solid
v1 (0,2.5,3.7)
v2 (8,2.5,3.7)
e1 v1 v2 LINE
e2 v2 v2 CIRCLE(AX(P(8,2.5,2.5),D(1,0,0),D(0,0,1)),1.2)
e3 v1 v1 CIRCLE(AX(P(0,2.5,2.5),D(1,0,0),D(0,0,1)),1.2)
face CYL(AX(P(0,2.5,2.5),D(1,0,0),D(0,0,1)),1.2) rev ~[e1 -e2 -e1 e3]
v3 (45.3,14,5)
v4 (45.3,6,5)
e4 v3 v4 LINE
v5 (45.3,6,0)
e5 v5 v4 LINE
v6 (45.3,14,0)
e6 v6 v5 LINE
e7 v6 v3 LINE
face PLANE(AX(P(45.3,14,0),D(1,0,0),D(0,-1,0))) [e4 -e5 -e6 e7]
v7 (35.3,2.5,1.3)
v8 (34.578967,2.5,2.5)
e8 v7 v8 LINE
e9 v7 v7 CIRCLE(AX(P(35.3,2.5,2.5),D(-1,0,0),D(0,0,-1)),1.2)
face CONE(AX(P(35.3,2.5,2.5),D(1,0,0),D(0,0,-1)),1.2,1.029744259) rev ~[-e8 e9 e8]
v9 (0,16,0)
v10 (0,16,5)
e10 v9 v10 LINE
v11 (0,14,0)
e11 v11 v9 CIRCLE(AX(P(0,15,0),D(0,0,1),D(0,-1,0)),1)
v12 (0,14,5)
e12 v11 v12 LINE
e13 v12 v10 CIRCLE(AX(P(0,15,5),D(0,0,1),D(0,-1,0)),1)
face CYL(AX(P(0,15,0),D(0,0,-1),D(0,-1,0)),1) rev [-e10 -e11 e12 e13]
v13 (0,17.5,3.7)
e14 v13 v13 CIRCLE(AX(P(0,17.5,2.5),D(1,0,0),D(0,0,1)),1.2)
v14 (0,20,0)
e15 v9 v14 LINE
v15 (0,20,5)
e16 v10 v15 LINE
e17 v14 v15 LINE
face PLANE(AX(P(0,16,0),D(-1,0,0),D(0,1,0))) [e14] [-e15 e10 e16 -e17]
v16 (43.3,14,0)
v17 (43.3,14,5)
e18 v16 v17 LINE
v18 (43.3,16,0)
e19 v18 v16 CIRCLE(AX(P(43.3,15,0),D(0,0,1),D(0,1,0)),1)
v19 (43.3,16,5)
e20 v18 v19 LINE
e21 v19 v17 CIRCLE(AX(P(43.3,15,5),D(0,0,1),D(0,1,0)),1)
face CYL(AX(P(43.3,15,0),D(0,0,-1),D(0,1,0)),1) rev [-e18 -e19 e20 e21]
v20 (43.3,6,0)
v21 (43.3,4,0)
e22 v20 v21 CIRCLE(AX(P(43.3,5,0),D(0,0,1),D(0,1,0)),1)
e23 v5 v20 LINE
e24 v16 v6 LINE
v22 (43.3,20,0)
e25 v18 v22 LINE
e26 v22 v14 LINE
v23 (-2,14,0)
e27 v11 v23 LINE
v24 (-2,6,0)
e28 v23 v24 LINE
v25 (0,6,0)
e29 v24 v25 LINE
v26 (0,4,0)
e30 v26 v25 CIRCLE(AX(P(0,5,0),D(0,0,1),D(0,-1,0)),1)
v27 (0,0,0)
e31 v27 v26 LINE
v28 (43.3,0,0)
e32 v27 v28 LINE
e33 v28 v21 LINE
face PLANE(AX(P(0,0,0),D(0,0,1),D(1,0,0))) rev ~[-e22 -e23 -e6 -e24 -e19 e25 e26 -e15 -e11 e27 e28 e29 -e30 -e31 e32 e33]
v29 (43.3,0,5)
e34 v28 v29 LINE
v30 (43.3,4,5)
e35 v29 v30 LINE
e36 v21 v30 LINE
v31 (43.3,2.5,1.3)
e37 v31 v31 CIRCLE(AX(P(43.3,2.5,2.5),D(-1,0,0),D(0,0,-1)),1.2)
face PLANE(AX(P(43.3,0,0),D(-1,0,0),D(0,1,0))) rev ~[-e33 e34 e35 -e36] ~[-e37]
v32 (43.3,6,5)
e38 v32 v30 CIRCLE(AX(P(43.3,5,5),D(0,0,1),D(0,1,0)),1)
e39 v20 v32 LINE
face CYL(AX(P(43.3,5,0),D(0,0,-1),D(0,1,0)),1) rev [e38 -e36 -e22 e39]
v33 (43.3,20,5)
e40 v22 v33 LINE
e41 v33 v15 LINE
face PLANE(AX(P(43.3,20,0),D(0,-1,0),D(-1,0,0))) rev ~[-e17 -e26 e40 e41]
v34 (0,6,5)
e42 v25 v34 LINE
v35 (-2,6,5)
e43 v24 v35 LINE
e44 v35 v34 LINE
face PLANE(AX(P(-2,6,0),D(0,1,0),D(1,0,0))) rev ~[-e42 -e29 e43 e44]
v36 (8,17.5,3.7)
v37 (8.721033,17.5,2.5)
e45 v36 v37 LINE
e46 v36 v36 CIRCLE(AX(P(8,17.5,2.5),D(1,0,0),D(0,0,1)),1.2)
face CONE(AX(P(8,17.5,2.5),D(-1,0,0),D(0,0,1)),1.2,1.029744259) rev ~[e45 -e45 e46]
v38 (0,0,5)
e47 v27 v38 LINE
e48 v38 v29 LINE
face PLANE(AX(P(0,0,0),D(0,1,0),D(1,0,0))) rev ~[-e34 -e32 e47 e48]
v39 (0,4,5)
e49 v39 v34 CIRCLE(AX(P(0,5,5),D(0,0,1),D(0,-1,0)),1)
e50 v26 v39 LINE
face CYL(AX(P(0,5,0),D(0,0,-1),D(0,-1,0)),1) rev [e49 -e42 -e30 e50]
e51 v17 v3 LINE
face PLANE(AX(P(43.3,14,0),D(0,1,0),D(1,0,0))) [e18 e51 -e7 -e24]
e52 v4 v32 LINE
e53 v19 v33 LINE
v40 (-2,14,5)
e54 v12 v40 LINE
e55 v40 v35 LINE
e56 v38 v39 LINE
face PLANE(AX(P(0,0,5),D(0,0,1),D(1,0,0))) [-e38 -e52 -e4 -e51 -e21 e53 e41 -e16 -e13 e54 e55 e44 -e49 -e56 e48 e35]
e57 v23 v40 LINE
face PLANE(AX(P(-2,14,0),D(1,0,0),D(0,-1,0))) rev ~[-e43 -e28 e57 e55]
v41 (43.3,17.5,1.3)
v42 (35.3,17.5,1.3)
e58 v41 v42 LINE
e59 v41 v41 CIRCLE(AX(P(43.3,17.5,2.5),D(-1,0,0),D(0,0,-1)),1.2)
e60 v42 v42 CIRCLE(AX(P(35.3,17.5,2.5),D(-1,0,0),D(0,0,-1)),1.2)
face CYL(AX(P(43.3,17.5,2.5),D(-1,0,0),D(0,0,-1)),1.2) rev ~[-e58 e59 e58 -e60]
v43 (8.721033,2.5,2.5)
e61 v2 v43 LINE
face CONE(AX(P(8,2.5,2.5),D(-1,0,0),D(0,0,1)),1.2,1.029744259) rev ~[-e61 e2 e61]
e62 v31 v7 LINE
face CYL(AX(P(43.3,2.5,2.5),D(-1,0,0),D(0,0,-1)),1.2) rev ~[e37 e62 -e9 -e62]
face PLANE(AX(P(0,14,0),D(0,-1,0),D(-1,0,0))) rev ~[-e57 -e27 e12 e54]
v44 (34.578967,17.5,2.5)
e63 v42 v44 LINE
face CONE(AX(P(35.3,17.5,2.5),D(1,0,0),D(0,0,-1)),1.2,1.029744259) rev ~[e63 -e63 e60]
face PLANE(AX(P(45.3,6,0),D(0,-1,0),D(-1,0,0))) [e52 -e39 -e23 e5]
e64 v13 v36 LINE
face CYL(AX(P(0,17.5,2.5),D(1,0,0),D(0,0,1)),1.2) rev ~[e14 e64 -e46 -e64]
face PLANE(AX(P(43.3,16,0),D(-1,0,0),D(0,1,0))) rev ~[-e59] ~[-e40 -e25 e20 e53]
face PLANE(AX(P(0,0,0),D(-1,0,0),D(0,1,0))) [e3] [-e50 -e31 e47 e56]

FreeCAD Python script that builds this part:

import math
import FreeCAD as App
import Part
import Sketcher

V = App.Vector
Q = App.Units.Quantity

doc = App.newDocument("Part")
params = doc.addObject("Spreadsheet::Sheet", "Params")
for row, (alias, value) in enumerate([
    ("sketch1_radius", "1 mm"),
    ("sketch1_width", "2 mm"),
    ("sketch1_height", "8 mm"),
    ("sketch1_width2", "43.3 mm"),
    ("pad1_length", "5 mm"),
    ("sketch2_diameter", "2.4 mm"),
    ("hole_diameter", "2.4 mm"),
    ("hole_depth", "8 mm"),
    ("sketch3_diameter", "2.4 mm"),
    ("hole2_diameter", "2.4 mm"),
    ("hole2_depth", "8 mm"),
], start=1):
    params.set(f"A{row}", alias)
    params.set(f"B{row}", "=" + value)
    params.setAlias(f"B{row}", alias)

body = doc.addObject("PartDesign::Body", "Body")

sketch1 = body.newObject("Sketcher::SketchObject", "Sketch")
sketch1.AttachmentSupport = (doc.getObject("XY_Plane"), [""])
sketch1.MapMode = "FlatFace"
sketch1.addGeometry(Part.LineSegment(V(0, 4, 0), V(0, 0, 0)), False)
sketch1.addGeometry(Part.LineSegment(V(0, 0, 0), V(43.3, 0, 0)), False)
sketch1.addGeometry(Part.LineSegment(V(43.3, 0, 0), V(43.3, 4, 0)), False)
sketch1.addGeometry(Part.ArcOfCircle(Part.Circle(V(43.3, 5, 0), V(0, 0, 1), 1), math.radians(90), math.radians(270)), False)
sketch1.addGeometry(Part.LineSegment(V(43.3, 6, 0), V(45.3, 6, 0)), False)
sketch1.addGeometry(Part.LineSegment(V(45.3, 6, 0), V(45.3, 14, 0)), False)
sketch1.addGeometry(Part.LineSegment(V(45.3, 14, 0), V(43.3, 14, 0)), False)
sketch1.addGeometry(Part.ArcOfCircle(Part.Circle(V(43.3, 15, 0), V(0, 0, 1), 1), math.radians(90), math.radians(270)), False)
sketch1.addGeometry(Part.LineSegment(V(43.3, 16, 0), V(43.3, 20, 0)), False)
sketch1.addGeometry(Part.LineSegment(V(43.3, 20, 0), V(0, 20, 0)), False)
sketch1.addGeometry(Part.LineSegment(V(0, 20, 0), V(0, 16, 0)), False)
sketch1.addGeometry(Part.ArcOfCircle(Part.Circle(V(0, 15, 0), V(0, 0, 1), 1), math.radians(-90), math.radians(90)), False)
sketch1.addGeometry(Part.LineSegment(V(0, 14, 0), V(-2, 14, 0)), False)
sketch1.addGeometry(Part.LineSegment(V(-2, 14, 0), V(-2, 6, 0)), False)
sketch1.addGeometry(Part.LineSegment(V(-2, 6, 0), V(0, 6, 0)), False)
sketch1.addGeometry(Part.ArcOfCircle(Part.Circle(V(0, 5, 0), V(0, 0, 1), 1), math.radians(-90), math.radians(90)), False)
sketch1.addConstraint(Sketcher.Constraint("Coincident", 0, 2, 1, 1))
sketch1.addConstraint(Sketcher.Constraint("Coincident", 1, 2, 2, 1))
sketch1.addConstraint(Sketcher.Constraint("Coincident", 2, 2, 3, 2))
sketch1.addConstraint(Sketcher.Constraint("Tangent", 3, 1, 4, 1))
sketch1.addConstraint(Sketcher.Constraint("Coincident", 4, 2, 5, 1))
sketch1.addConstraint(Sketcher.Constraint("Coincident", 5, 2, 6, 1))
sketch1.addConstraint(Sketcher.Constraint("Tangent", 6, 2, 7, 2))
sketch1.addConstraint(Sketcher.Constraint("Coincident", 7, 1, 8, 1))
sketch1.addConstraint(Sketcher.Constraint("Coincident", 8, 2, 9, 1))
sketch1.addConstraint(Sketcher.Constraint("Coincident", 9, 2, 10, 1))
sketch1.addConstraint(Sketcher.Constraint("Coincident", 10, 2, 11, 2))
sketch1.addConstraint(Sketcher.Constraint("Tangent", 11, 1, 12, 1))
sketch1.addConstraint(Sketcher.Constraint("Coincident", 12, 2, 13, 1))
sketch1.addConstraint(Sketcher.Constraint("Coincident", 13, 2, 14, 1))
sketch1.addConstraint(Sketcher.Constraint("Tangent", 14, 2, 15, 2))
sketch1.addConstraint(Sketcher.Constraint("Coincident", 15, 1, 0, 1))
sketch1.addConstraint(Sketcher.Constraint("Vertical", 0))
sketch1.addConstraint(Sketcher.Constraint("Horizontal", 1))
sketch1.addConstraint(Sketcher.Constraint("Vertical", 2))
sketch1.addConstraint(Sketcher.Constraint("Horizontal", 4))
sketch1.addConstraint(Sketcher.Constraint("Vertical", 5))
sketch1.addConstraint(Sketcher.Constraint("Horizontal", 6))
sketch1.addConstraint(Sketcher.Constraint("Vertical", 8))
sketch1.addConstraint(Sketcher.Constraint("Horizontal", 9))
sketch1.addConstraint(Sketcher.Constraint("Vertical", 10))
sketch1.addConstraint(Sketcher.Constraint("Horizontal", 12))
sketch1.addConstraint(Sketcher.Constraint("Vertical", 13))
sketch1.addConstraint(Sketcher.Constraint("Horizontal", 14))
sketch1.addConstraint(Sketcher.Constraint("Coincident", 0, 2, -1, 1))
sketch1.addConstraint(Sketcher.Constraint("Equal", 3, 7))
sketch1.addConstraint(Sketcher.Constraint("Equal", 7, 11))
sketch1.addConstraint(Sketcher.Constraint("Equal", 11, 15))
sketch1.addConstraint(Sketcher.Constraint("PointOnObject", 11, 3, -2))
sketch1.addConstraint(Sketcher.Constraint("PointOnObject", 15, 3, -2))
sketch1.addConstraint(Sketcher.Constraint("PointOnObject", 9, 2, -2))
sketch1.addConstraint(Sketcher.Constraint("Horizontal", 7, 3, 11, 3))
sketch1.addConstraint(Sketcher.Constraint("Horizontal", 3, 3, 15, 3))
sketch1.addConstraint(Sketcher.Constraint("Vertical", 3, 3, 7, 3))
sketch1.addConstraint(Sketcher.Constraint("Vertical", 7, 3, 1, 2))
sketch1.addConstraint(Sketcher.Constraint("Vertical", 6, 2, 7, 1))
sketch1.addConstraint(Sketcher.Constraint("Equal", 6, 12))
sketch1.addConstraint(Sketcher.Constraint("Equal", 2, 8))
sketch1.addConstraint(Sketcher.Constraint("Radius", 3, Q("1 mm")))
sketch1.addConstraint(Sketcher.Constraint("DistanceX", 4, 1, 4, 2, Q("2 mm")))
sketch1.addConstraint(Sketcher.Constraint("DistanceY", 5, 1, 5, 2, Q("8 mm")))
sketch1.addConstraint(Sketcher.Constraint("DistanceX", 1, 1, 1, 2, Q("43.3 mm")))
sketch1.addConstraint(Sketcher.Constraint("DistanceY", -1, 1, 8, 2, Q("20 mm")))
sketch1.setExpression("Constraints[42]", "Params.sketch1_radius")
sketch1.setExpression("Constraints[43]", "Params.sketch1_width")
sketch1.setExpression("Constraints[44]", "Params.sketch1_height")
sketch1.setExpression("Constraints[45]", "Params.sketch1_width2")
pad1 = body.newObject("PartDesign::Pad", "Pad")
pad1.Profile = sketch1
pad1.setExpression("Length", "Params.pad1_length")

sketch2 = body.newObject("Sketcher::SketchObject", "Sketch001")
sketch2.AttachmentSupport = (doc.getObject("YZ_Plane"), [""])
sketch2.MapMode = "FlatFace"
sketch2.AttachmentOffset = App.Placement(V(0, 0, 43.3), App.Rotation())
sketch2.addGeometry(Part.Circle(V(17.5, 2.5, 0), V(0, 0, 1), 1.2), False)
sketch2.addGeometry(Part.Circle(V(2.5, 2.5, 0), V(0, 0, 1), 1.2), False)
sketch2.addConstraint(Sketcher.Constraint("Equal", 0, 1))
sketch2.addConstraint(Sketcher.Constraint("Horizontal", 0, 3, 1, 3))
sketch2.addConstraint(Sketcher.Constraint("Diameter", 0, Q("2.4 mm")))
sketch2.addConstraint(Sketcher.Constraint("DistanceX", 1, 3, 0, 3, Q("15 mm")))
sketch2.addConstraint(Sketcher.Constraint("DistanceX", -1, 1, 0, 3, Q("17.5 mm")))
sketch2.addConstraint(Sketcher.Constraint("DistanceY", -1, 1, 0, 3, Q("2.5 mm")))
sketch2.setExpression("Constraints[2]", "Params.sketch2_diameter")
doc.recompute()
hole = body.newObject("PartDesign::Hole", "Hole")
hole.Profile = sketch2
hole.ThreadType = "None"
hole.setExpression("Diameter", "Params.hole_diameter")
hole.DepthType = "Dimension"
hole.setExpression("Depth", "Params.hole_depth")
hole.DrillPoint = "Angled"
hole.DrillPointAngle = 118

sketch3 = body.newObject("Sketcher::SketchObject", "Sketch002")
sketch3.AttachmentSupport = (doc.getObject("YZ_Plane"), [""])
sketch3.MapMode = "FlatFace"
sketch3.addGeometry(Part.Circle(V(17.5, 2.5, 0), V(0, 0, 1), 1.2), False)
sketch3.addGeometry(Part.Circle(V(2.5, 2.5, 0), V(0, 0, 1), 1.2), False)
sketch3.addConstraint(Sketcher.Constraint("Equal", 0, 1))
sketch3.addConstraint(Sketcher.Constraint("Horizontal", 0, 3, 1, 3))
sketch3.addConstraint(Sketcher.Constraint("Diameter", 0, Q("2.4 mm")))
sketch3.addConstraint(Sketcher.Constraint("DistanceX", 1, 3, 0, 3, Q("15 mm")))
sketch3.addConstraint(Sketcher.Constraint("DistanceX", -1, 1, 0, 3, Q("17.5 mm")))
sketch3.addConstraint(Sketcher.Constraint("DistanceY", -1, 1, 0, 3, Q("2.5 mm")))
sketch3.setExpression("Constraints[2]", "Params.sketch3_diameter")
doc.recompute()
hole2 = body.newObject("PartDesign::Hole", "Hole001")
hole2.Profile = sketch3
hole2.ThreadType = "None"
hole2.setExpression("Diameter", "Params.hole2_diameter")
hole2.DepthType = "Dimension"
hole2.setExpression("Depth", "Params.hole2_depth")
hole2.DrillPoint = "Angled"
hole2.DrillPointAngle = 118
hole2.Reversed = True

doc.recompute()
